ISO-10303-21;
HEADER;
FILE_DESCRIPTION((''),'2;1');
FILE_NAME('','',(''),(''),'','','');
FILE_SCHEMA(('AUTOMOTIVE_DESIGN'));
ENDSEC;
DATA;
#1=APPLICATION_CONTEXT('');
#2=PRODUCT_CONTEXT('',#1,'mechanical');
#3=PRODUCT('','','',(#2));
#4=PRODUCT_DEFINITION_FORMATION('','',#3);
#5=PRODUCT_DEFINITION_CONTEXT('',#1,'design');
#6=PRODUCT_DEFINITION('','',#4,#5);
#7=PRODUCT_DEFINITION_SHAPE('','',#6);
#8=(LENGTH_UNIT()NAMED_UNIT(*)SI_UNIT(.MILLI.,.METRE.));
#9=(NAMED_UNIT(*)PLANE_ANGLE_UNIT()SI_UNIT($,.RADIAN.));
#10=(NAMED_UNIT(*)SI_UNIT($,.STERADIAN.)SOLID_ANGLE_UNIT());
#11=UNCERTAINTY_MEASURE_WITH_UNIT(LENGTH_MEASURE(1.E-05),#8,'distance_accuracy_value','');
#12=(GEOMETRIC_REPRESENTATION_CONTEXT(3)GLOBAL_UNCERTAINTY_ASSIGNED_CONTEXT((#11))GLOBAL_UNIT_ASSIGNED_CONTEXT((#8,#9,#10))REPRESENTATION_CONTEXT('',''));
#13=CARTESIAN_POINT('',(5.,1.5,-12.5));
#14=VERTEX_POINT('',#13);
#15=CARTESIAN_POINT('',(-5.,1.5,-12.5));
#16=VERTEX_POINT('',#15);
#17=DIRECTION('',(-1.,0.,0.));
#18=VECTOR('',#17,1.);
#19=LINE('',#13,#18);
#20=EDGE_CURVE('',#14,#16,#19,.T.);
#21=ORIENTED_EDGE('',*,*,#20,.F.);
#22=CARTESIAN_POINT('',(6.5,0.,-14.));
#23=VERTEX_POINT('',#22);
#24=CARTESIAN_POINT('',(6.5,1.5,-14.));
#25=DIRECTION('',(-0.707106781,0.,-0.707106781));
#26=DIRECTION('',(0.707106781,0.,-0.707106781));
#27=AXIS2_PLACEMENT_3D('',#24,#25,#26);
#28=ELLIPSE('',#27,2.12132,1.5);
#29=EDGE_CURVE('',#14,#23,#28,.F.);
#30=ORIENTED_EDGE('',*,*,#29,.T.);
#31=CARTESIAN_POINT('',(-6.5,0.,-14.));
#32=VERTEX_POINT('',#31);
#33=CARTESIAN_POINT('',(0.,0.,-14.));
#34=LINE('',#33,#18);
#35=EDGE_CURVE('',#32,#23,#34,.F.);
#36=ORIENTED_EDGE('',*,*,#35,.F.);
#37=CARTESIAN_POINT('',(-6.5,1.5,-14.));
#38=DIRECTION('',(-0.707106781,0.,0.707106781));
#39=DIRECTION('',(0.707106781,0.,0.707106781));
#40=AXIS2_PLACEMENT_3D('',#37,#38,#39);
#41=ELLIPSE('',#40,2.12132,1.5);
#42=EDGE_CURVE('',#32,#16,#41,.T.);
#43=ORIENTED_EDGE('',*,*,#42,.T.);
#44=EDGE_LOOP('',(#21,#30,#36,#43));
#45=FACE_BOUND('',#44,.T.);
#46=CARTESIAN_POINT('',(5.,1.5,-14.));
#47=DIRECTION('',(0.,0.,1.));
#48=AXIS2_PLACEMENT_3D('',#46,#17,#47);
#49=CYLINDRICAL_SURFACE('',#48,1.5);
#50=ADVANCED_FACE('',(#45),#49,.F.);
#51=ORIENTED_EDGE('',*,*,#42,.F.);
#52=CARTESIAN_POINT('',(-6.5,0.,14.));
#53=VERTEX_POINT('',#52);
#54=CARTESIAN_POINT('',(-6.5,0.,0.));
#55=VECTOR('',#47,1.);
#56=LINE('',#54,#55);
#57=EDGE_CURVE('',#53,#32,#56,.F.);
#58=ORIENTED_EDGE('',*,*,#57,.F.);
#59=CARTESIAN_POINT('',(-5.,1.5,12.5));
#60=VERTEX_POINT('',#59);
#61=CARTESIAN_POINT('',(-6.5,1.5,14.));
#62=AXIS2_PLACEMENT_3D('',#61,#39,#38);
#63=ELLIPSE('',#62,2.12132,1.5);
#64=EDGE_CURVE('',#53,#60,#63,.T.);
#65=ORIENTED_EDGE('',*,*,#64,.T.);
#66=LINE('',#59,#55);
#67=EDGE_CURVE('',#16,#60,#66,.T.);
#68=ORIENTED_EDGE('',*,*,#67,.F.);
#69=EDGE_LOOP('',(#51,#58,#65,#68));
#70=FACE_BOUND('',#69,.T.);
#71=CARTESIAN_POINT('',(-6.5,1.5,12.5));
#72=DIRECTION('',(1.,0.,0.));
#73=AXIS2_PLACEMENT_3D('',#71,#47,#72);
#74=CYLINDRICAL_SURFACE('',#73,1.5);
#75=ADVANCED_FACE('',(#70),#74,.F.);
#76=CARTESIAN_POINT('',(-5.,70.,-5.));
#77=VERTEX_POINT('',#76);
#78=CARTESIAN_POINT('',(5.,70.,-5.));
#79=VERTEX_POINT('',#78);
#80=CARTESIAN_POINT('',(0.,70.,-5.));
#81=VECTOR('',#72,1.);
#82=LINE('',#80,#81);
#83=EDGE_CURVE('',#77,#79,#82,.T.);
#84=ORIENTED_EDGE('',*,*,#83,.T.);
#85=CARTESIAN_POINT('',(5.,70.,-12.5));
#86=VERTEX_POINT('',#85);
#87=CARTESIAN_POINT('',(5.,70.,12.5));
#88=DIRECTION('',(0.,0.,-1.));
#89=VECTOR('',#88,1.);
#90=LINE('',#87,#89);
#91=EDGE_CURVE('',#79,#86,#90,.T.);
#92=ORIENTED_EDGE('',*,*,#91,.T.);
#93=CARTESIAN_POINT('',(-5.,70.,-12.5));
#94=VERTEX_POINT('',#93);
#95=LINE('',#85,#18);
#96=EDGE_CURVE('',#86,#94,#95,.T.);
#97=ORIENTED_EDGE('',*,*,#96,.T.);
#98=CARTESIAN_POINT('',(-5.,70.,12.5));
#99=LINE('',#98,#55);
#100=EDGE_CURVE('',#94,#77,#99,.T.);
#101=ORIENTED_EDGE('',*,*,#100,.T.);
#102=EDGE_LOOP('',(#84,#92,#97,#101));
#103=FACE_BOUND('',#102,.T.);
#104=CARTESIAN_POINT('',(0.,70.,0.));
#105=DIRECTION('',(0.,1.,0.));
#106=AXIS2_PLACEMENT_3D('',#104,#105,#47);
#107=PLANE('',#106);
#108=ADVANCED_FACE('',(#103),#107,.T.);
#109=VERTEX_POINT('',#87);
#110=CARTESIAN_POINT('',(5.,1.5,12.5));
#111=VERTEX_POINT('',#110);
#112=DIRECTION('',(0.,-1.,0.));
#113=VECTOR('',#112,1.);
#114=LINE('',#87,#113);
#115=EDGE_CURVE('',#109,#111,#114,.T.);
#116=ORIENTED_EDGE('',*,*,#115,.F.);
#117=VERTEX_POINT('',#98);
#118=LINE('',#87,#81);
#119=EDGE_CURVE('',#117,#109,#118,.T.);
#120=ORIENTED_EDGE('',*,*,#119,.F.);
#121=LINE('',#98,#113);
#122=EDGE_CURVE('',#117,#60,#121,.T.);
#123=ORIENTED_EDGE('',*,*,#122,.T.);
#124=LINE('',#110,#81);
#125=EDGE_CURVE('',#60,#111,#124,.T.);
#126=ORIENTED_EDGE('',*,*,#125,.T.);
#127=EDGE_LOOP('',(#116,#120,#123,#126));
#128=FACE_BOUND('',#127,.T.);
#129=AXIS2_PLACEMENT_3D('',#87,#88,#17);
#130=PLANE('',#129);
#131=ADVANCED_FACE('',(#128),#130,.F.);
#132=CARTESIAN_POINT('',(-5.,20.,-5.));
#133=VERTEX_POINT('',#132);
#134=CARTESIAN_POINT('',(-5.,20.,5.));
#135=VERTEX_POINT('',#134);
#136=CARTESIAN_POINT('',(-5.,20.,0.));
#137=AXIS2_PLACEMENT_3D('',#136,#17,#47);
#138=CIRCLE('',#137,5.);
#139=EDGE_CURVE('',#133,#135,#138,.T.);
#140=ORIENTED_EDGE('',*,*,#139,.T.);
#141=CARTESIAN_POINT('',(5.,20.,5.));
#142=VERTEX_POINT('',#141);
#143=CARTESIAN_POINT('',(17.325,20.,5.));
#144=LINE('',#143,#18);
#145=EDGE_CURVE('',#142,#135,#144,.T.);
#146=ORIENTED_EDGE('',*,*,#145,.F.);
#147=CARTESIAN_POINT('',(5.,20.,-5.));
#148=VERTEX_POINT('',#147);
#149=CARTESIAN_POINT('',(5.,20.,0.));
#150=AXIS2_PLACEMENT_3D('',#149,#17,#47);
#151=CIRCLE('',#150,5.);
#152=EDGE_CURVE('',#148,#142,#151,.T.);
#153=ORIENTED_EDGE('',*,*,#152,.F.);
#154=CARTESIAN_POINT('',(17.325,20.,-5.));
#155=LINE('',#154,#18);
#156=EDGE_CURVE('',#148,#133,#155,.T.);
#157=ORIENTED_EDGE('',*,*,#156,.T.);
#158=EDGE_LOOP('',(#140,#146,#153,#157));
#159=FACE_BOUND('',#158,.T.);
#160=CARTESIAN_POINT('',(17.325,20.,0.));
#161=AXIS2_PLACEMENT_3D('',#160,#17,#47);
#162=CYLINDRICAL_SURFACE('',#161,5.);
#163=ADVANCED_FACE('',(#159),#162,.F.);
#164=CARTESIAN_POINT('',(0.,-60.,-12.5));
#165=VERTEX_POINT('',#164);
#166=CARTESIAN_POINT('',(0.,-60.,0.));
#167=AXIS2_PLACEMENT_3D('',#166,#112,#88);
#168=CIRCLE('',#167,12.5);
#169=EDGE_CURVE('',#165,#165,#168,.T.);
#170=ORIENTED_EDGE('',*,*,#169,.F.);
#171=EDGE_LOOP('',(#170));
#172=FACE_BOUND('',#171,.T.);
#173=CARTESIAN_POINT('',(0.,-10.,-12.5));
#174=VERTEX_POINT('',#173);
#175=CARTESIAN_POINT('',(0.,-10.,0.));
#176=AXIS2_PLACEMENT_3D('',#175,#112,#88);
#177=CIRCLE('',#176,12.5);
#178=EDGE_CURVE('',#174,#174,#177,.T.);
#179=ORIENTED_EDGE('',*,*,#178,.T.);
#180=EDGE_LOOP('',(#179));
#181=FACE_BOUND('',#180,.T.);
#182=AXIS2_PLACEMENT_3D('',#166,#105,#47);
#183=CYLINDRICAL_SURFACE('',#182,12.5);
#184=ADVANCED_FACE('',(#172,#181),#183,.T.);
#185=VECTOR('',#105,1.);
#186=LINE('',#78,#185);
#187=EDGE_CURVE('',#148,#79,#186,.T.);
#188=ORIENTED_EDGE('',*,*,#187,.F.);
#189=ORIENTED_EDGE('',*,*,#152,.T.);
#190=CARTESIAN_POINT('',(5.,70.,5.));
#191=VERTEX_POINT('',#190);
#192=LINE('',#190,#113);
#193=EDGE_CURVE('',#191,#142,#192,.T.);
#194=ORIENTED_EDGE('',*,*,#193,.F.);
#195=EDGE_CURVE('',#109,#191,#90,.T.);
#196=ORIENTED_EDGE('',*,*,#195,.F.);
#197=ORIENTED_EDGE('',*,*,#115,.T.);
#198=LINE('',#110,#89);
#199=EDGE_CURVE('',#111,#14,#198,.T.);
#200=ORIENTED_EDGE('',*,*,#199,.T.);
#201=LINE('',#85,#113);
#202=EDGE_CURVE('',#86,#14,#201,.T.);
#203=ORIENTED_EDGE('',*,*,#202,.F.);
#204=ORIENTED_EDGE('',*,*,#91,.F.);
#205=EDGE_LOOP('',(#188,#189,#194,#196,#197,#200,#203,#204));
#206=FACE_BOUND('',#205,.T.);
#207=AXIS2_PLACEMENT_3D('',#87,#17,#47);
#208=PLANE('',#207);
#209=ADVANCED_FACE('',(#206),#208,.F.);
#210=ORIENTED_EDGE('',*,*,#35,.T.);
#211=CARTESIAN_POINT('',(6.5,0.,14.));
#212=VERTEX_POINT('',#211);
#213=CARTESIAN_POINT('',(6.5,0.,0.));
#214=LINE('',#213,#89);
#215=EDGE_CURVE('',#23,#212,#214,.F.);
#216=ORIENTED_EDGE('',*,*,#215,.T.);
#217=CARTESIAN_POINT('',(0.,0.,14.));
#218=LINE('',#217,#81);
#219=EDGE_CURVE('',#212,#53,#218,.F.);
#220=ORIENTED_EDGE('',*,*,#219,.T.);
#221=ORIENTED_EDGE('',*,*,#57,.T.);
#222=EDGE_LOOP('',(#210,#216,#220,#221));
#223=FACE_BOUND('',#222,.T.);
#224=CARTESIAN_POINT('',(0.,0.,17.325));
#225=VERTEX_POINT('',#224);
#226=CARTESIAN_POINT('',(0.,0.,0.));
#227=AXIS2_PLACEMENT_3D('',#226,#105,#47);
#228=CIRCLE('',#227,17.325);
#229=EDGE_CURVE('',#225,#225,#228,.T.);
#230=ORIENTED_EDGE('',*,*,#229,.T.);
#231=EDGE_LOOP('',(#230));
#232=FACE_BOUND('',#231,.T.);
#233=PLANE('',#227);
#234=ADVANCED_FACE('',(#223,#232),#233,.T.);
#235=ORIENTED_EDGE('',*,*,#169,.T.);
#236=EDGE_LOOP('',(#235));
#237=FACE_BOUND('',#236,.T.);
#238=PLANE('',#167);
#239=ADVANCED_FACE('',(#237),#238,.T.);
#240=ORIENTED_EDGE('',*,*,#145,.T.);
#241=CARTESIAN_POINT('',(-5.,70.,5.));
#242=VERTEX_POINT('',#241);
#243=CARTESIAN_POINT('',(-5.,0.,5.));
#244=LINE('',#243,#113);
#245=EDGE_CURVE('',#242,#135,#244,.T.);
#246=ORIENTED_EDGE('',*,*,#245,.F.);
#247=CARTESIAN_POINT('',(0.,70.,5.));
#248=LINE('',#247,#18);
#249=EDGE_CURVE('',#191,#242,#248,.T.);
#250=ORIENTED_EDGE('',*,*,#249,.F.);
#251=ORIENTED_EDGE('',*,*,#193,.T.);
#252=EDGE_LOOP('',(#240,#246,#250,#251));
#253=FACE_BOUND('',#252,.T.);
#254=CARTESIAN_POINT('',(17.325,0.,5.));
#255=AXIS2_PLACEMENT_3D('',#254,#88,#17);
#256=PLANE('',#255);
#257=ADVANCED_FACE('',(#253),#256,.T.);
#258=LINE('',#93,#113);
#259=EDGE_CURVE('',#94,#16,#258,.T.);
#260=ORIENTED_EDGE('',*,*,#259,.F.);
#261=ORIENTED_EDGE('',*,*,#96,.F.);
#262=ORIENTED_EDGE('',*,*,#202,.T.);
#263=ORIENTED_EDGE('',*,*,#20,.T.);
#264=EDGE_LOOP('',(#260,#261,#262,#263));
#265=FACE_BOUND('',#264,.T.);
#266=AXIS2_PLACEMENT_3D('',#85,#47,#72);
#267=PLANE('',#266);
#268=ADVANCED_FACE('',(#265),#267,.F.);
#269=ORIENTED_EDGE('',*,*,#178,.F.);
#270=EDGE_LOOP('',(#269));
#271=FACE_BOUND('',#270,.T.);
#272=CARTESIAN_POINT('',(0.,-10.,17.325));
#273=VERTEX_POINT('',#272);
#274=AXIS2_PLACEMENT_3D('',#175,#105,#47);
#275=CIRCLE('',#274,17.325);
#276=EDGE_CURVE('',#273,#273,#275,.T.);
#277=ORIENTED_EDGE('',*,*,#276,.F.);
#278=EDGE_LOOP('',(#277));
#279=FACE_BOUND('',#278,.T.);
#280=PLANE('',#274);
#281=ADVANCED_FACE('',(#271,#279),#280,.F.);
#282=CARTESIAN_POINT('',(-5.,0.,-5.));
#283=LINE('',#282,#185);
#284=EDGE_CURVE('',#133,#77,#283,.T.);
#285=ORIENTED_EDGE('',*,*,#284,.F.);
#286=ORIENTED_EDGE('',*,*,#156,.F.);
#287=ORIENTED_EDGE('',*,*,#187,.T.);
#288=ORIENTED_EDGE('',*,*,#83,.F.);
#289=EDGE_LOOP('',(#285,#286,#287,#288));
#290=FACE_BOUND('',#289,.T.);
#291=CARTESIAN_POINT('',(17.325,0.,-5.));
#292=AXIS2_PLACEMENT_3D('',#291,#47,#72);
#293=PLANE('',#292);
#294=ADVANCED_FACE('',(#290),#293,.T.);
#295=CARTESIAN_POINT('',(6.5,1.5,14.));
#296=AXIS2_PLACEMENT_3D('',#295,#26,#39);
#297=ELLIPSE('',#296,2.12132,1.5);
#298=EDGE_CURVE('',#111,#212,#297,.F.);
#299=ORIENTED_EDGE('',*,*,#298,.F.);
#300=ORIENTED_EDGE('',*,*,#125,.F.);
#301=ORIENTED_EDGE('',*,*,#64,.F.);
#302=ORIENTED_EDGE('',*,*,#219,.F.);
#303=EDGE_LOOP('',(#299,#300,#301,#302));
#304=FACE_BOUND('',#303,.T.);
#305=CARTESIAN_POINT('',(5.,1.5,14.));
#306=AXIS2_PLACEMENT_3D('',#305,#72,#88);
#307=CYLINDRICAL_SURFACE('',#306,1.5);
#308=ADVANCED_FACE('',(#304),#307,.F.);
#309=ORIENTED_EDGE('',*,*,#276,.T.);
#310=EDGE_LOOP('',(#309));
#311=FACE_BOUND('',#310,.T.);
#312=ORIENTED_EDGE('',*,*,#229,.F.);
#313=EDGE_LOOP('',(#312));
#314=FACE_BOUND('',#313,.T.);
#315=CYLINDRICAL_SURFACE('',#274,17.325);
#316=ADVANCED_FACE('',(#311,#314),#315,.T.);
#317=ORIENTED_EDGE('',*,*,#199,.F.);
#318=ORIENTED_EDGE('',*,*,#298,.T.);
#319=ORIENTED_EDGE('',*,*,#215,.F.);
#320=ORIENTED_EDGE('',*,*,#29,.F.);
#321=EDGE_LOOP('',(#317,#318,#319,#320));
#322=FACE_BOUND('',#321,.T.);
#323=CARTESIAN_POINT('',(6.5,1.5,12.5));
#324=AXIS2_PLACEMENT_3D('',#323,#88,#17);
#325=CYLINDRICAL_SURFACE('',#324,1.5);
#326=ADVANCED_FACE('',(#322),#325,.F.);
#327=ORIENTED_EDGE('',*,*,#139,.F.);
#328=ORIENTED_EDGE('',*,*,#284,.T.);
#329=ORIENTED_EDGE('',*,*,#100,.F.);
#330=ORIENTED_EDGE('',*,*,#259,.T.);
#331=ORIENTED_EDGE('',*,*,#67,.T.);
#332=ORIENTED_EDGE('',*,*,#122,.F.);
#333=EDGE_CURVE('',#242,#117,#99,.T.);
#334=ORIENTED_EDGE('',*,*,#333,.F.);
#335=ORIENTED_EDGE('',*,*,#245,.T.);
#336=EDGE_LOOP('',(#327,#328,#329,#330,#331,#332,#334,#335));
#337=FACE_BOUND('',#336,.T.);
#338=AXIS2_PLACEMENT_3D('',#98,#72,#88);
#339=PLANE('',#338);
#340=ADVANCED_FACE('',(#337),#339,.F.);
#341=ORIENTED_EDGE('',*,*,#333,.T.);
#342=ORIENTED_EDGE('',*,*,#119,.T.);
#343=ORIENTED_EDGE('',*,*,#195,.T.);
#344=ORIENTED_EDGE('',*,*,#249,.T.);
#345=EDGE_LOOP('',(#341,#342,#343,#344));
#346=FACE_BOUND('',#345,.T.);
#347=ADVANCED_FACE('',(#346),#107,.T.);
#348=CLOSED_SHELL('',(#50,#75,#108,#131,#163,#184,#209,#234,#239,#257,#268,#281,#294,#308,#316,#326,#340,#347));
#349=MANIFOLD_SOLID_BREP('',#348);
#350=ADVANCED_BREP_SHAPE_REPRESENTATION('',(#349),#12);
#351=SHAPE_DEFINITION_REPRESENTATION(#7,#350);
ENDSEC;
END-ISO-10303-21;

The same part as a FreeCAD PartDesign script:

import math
import FreeCAD as App
import Part
import Sketcher
from FreeCAD import Vector
Q = App.Units.Quantity


def edges_at(feature, points):
    """Names of the edges that pass closest to the given points."""
    edges = feature.Shape.Edges
    near = lambda p: min(range(len(edges)), key=lambda i: edges[i].distToShape(Part.Vertex(*p))[0])
    return sorted({f"Edge{near(p) + 1}" for p in points})

doc = App.newDocument("Part")
params = doc.addObject("Spreadsheet::Sheet", "Params")
for row, (alias, value) in enumerate([
    ("sketch1_diameter", "34.65 mm"),
    ("pad1_length", "10 mm"),
    ("sketch2_diameter", "25 mm"),
    ("pad2_length", "50 mm"),
    ("sketch3_width", "10 mm"),
    ("sketch3_height", "25 mm"),
    ("pad3_length", "70 mm"),
    ("fillet_radius", "1.5 mm"),
    ("sketch4_radius", "5 mm"),
    ("sketch4_width", "50 mm"),
], start=1):
    params.set(f"A{row}", alias)
    params.set(f"B{row}", "=" + value)
    params.setAlias(f"B{row}", alias)

body = doc.addObject("PartDesign::Body", "Body")

# Sketch on XZ plane
sketch1 = body.newObject("Sketcher::SketchObject", "Sketch")
sketch1.AttachmentSupport = (doc.getObject("XZ_Plane"), [""])
sketch1.MapMode = "FlatFace"
sketch1.addGeometry(Part.Circle(Vector(0, 0, 0), Vector(0, 0, 1), 17.325), False)
sketch1.addConstraint([
    Sketcher.Constraint("Coincident", 0, 3, -1, 1),
    Sketcher.Constraint("Diameter", 0, Q("34.65 mm")),
])
sketch1.setExpression("Constraints[1]", "Params.sketch1_diameter")
pad1 = body.newObject("PartDesign::Pad", "Pad")
pad1.Profile = sketch1
pad1.setExpression("Length", "Params.pad1_length")

# Sketch on XZ plane
sketch2 = body.newObject("Sketcher::SketchObject", "Sketch001")
sketch2.AttachmentSupport = (doc.getObject("XZ_Plane"), [""])
sketch2.MapMode = "FlatFace"
sketch2.AttachmentOffset = App.Placement(Vector(0, 0, 10), App.Rotation())
sketch2.addGeometry(Part.Circle(Vector(0, 0, 0), Vector(0, 0, 1), 12.5), False)
sketch2.addConstraint([
    Sketcher.Constraint("Coincident", 0, 3, -1, 1),
    Sketcher.Constraint("Diameter", 0, Q("25 mm")),
])
sketch2.setExpression("Constraints[1]", "Params.sketch2_diameter")
pad2 = body.newObject("PartDesign::Pad", "Pad001")
pad2.Profile = sketch2
pad2.setExpression("Length", "Params.pad2_length")

# Sketch on XZ plane
sketch3 = body.newObject("Sketcher::SketchObject", "Sketch002")
sketch3.AttachmentSupport = (doc.getObject("XZ_Plane"), [""])
sketch3.MapMode = "FlatFace"
sketch3.addGeometry([
    Part.LineSegment(Vector(-5, -12.5, 0), Vector(-5, 12.5, 0)),
    Part.LineSegment(Vector(-5, 12.5, 0), Vector(5, 12.5, 0)),
    Part.LineSegment(Vector(5, 12.5, 0), Vector(5, -12.5, 0)),
    Part.LineSegment(Vector(5, -12.5, 0), Vector(-5, -12.5, 0)),
], False)
sketch3.addConstraint([
    Sketcher.Constraint("Coincident", 0, 2, 1, 1),
    Sketcher.Constraint("Coincident", 1, 2, 2, 1),
    Sketcher.Constraint("Coincident", 2, 2, 3, 1),
    Sketcher.Constraint("Coincident", 3, 2, 0, 1),
    Sketcher.Constraint("Vertical", 0),
    Sketcher.Constraint("Horizontal", 1),
    Sketcher.Constraint("Vertical", 2),
    Sketcher.Constraint("Horizontal", 3),
    Sketcher.Constraint("Symmetric", 0, 2, 2, 2, -1, 1),
    Sketcher.Constraint("DistanceX", 1, 1, 1, 2, Q("10 mm")),
    Sketcher.Constraint("DistanceY", 0, 1, 0, 2, Q("25 mm")),
])
sketch3.setExpression("Constraints[9]", "Params.sketch3_width")
sketch3.setExpression("Constraints[10]", "Params.sketch3_height")
pad3 = body.newObject("PartDesign::Pad", "Pad002")
pad3.Profile = sketch3
pad3.setExpression("Length", "Params.pad3_length")
pad3.Reversed = True
doc.recompute()

fillet = body.newObject("PartDesign::Fillet", "Fillet")
fillet.Base = (pad3, edges_at(pad3, [
    (5, 0, 0),
    (0, 0, -12.5),
    (-5, 0, 0),
    (0, 0, 12.5),
]))
fillet.setExpression("Radius", "Params.fillet_radius")

# Sketch on YZ plane
sketch4 = body.newObject("Sketcher::SketchObject", "Sketch003")
sketch4.AttachmentSupport = (doc.getObject("YZ_Plane"), [""])
sketch4.MapMode = "FlatFace"
sketch4.AttachmentOffset = App.Placement(Vector(0, 0, -5), App.Rotation())
sketch4.addGeometry([
    Part.LineSegment(Vector(70, 5, 0), Vector(70, -5, 0)),
    Part.LineSegment(Vector(70, -5, 0), Vector(20, -5, 0)),
    Part.ArcOfCircle(Part.Circle(Vector(20, 0, 0), Vector(0, 0, 1), 5), math.radians(90), math.radians(270)),
    Part.LineSegment(Vector(20, 5, 0), Vector(70, 5, 0)),
], False)
sketch4.addConstraint([
    Sketcher.Constraint("Coincident", 0, 2, 1, 1),
    Sketcher.Constraint("Tangent", 1, 2, 2, 2),
    Sketcher.Constraint("Tangent", 2, 1, 3, 1),
    Sketcher.Constraint("Coincident", 3, 2, 0, 1),
    Sketcher.Constraint("Vertical", 0),
    Sketcher.Constraint("Horizontal", 1),
    Sketcher.Constraint("Horizontal", 3),
    Sketcher.Constraint("PointOnObject", 2, 3, -1),
    Sketcher.Constraint("Radius", 2, Q("5 mm")),
    Sketcher.Constraint("DistanceX", 1, 2, 1, 1, Q("50 mm")),
    Sketcher.Constraint("DistanceX", -1, 1, 2, 3, Q("20 mm")),
])
sketch4.setExpression("Constraints[8]", "Params.sketch4_radius")
sketch4.setExpression("Constraints[9]", "Params.sketch4_width")
pocket1 = body.newObject("PartDesign::Pocket", "Pocket")
pocket1.Profile = sketch4
pocket1.Type = "ThroughAll"
pocket1.Reversed = True

doc.recompute()
